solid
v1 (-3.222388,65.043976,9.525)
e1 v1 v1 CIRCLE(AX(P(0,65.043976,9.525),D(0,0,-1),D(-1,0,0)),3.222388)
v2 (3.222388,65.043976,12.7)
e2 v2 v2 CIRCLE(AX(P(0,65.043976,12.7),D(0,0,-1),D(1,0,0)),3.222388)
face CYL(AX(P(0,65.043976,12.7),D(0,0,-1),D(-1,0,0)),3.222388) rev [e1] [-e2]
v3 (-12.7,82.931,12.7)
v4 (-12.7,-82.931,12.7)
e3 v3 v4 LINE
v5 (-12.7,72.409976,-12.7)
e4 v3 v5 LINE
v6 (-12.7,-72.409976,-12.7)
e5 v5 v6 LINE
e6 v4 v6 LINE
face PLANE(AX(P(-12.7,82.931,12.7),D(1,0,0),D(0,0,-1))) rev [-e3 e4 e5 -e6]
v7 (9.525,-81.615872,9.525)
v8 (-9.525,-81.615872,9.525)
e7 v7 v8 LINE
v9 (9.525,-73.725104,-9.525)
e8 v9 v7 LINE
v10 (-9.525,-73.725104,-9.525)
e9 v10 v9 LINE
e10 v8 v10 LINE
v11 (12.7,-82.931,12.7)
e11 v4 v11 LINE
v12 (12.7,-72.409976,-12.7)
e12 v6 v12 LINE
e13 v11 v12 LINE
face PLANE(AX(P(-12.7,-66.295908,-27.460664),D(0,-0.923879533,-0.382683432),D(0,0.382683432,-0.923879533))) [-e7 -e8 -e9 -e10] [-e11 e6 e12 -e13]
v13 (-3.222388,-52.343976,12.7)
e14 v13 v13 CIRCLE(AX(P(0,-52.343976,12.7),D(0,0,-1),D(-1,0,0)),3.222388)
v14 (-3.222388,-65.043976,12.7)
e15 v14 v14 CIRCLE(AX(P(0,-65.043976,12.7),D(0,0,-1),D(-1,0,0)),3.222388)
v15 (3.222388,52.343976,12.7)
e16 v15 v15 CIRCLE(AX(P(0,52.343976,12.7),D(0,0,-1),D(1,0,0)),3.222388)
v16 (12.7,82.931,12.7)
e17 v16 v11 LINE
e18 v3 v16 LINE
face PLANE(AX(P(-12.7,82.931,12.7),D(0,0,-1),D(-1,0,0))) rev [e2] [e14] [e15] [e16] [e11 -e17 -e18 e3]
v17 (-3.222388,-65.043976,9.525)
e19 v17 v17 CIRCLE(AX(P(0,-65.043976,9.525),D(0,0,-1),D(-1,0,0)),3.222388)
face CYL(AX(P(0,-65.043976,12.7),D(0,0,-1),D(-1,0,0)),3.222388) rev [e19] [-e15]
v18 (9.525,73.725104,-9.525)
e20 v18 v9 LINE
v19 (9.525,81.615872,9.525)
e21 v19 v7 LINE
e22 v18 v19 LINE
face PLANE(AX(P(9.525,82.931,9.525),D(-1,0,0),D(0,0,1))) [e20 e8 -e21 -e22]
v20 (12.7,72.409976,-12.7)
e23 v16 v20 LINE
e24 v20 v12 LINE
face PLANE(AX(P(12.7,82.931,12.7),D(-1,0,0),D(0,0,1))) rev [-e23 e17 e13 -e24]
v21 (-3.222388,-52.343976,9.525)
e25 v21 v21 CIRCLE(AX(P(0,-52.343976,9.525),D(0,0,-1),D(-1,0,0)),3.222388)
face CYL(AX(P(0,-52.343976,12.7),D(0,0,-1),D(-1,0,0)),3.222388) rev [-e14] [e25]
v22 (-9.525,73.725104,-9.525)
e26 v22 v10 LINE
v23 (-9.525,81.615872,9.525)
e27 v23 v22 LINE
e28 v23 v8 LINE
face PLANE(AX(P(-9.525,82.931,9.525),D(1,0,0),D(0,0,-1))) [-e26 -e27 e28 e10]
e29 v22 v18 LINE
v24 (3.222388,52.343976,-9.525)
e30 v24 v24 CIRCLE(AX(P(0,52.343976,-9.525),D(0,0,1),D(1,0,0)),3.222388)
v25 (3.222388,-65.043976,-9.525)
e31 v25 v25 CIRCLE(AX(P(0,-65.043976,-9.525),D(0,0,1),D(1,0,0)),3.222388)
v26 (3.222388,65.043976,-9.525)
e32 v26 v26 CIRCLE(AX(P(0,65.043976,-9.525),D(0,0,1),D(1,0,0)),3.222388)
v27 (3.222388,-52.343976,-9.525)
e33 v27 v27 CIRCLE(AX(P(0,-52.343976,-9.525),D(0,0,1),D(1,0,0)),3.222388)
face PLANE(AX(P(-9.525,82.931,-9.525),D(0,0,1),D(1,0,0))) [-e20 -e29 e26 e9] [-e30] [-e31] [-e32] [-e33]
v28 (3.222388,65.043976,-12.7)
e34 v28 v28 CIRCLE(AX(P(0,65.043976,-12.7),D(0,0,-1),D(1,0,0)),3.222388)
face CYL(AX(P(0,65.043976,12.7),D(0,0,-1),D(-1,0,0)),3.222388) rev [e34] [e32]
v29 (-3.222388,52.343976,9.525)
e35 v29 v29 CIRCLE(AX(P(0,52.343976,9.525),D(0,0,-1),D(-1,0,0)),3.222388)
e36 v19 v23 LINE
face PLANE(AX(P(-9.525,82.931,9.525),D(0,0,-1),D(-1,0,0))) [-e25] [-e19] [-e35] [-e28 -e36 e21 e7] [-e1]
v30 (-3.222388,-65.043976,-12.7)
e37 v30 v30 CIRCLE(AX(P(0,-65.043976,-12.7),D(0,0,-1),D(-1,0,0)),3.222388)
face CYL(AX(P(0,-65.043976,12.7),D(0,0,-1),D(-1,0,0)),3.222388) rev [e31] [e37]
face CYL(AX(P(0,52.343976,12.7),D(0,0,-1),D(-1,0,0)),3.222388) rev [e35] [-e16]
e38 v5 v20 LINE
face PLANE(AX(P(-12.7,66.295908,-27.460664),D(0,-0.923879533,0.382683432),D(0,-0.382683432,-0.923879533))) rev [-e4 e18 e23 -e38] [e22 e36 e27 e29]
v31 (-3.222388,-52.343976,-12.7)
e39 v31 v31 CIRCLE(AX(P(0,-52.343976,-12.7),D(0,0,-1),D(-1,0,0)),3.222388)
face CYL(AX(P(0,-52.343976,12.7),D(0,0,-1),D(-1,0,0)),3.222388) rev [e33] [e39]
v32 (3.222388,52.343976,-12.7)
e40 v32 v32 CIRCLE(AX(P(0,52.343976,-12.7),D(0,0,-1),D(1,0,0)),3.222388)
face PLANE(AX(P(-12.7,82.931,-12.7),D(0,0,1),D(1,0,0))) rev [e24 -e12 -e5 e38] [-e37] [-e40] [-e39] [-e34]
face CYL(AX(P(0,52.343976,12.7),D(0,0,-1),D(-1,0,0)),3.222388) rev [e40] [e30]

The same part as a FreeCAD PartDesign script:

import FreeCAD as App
import Part
import Sketcher
Q = App.Units.Quantity

doc = App.newDocument("Part")
body = doc.addObject("PartDesign::Body", "Body")

# Sketch on XZ plane
sketch1 = body.newObject("Sketcher::SketchObject", "Sketch")
sketch1.AttachmentSupport = (doc.getObject("XZ_Plane"), [""])
sketch1.MapMode = "FlatFace"
sketch1.addGeometry(Part.LineSegment(App.Vector(-12.7, -12.7, 0), App.Vector(-12.7, 12.7, 0)), False)
sketch1.addGeometry(Part.LineSegment(App.Vector(-12.7, 12.7, 0), App.Vector(12.7, 12.7, 0)), False)
sketch1.addGeometry(Part.LineSegment(App.Vector(12.7, 12.7, 0), App.Vector(12.7, -12.7, 0)), False)
sketch1.addGeometry(Part.LineSegment(App.Vector(12.7, -12.7, 0), App.Vector(-12.7, -12.7, 0)), False)
sketch1.addGeometry(Part.LineSegment(App.Vector(9.525, 9.525, 0), App.Vector(-9.525, 9.525, 0)), False)
sketch1.addGeometry(Part.LineSegment(App.Vector(-9.525, 9.525, 0), App.Vector(-9.525, -9.525, 0)), False)
sketch1.addGeometry(Part.LineSegment(App.Vector(-9.525, -9.525, 0), App.Vector(9.525, -9.525, 0)), False)
sketch1.addGeometry(Part.LineSegment(App.Vector(9.525, -9.525, 0), App.Vector(9.525, 9.525, 0)), False)
sketch1.addConstraint(Sketcher.Constraint("Coincident", 0, 2, 1, 1))
sketch1.addConstraint(Sketcher.Constraint("Coincident", 1, 2, 2, 1))
sketch1.addConstraint(Sketcher.Constraint("Coincident", 2, 2, 3, 1))
sketch1.addConstraint(Sketcher.Constraint("Coincident", 3, 2, 0, 1))
sketch1.addConstraint(Sketcher.Constraint("Coincident", 4, 2, 5, 1))
sketch1.addConstraint(Sketcher.Constraint("Coincident", 5, 2, 6, 1))
sketch1.addConstraint(Sketcher.Constraint("Coincident", 6, 2, 7, 1))
sketch1.addConstraint(Sketcher.Constraint("Coincident", 7, 2, 4, 1))
sketch1.addConstraint(Sketcher.Constraint("Vertical", 0))
sketch1.addConstraint(Sketcher.Constraint("Horizontal", 1))
sketch1.addConstraint(Sketcher.Constraint("Vertical", 2))
sketch1.addConstraint(Sketcher.Constraint("Horizontal", 3))
sketch1.addConstraint(Sketcher.Constraint("Horizontal", 4))
sketch1.addConstraint(Sketcher.Constraint("Vertical", 5))
sketch1.addConstraint(Sketcher.Constraint("Horizontal", 6))
sketch1.addConstraint(Sketcher.Constraint("Vertical", 7))
sketch1.addConstraint(Sketcher.Constraint("Symmetric", 0, 2, 2, 2, -1, 1))
sketch1.addConstraint(Sketcher.Constraint("Symmetric", 4, 2, 6, 2, -1, 1))
sketch1.addConstraint(Sketcher.Constraint("Equal", 3, 0))
sketch1.addConstraint(Sketcher.Constraint("Equal", 6, 5))
sketch1.addConstraint(Sketcher.Constraint("DistanceX", 1, 1, 1, 2, Q("1 in")))
sketch1.addConstraint(Sketcher.Constraint("DistanceX", 4, 2, 4, 1, Q("0.75 in")))
pad1 = body.newObject("PartDesign::Pad", "Pad")
pad1.Profile = sketch1
pad1.Length = Q("6.53 in")
pad1.Midplane = True

# Sketch on YZ plane
sketch2 = body.newObject("Sketcher::SketchObject", "Sketch001")
sketch2.AttachmentSupport = (doc.getObject("YZ_Plane"), [""])
sketch2.MapMode = "FlatFace"
sketch2.AttachmentOffset = App.Placement(App.Vector(0, 0, 0.5 * 25.4), App.Rotation())
sketch2.addGeometry(Part.LineSegment(App.Vector(82.931, -12.7, 0), App.Vector(82.931, 12.7, 0)), False)
sketch2.addGeometry(Part.LineSegment(App.Vector(82.931, 12.7, 0), App.Vector(72.409976, -12.7, 0)), False)
sketch2.addGeometry(Part.LineSegment(App.Vector(72.409976, -12.7, 0), App.Vector(82.931, -12.7, 0)), False)
sketch2.addGeometry(Part.LineSegment(App.Vector(-72.409976, -12.7, 0), App.Vector(-82.931, 12.7, 0)), False)
sketch2.addGeometry(Part.LineSegment(App.Vector(-82.931, 12.7, 0), App.Vector(-82.931, -12.7, 0)), False)
sketch2.addGeometry(Part.LineSegment(App.Vector(-82.931, -12.7, 0), App.Vector(-72.409976, -12.7, 0)), False)
sketch2.addConstraint(Sketcher.Constraint("Coincident", 0, 2, 1, 1))
sketch2.addConstraint(Sketcher.Constraint("Coincident", 1, 2, 2, 1))
sketch2.addConstraint(Sketcher.Constraint("Coincident", 2, 2, 0, 1))
sketch2.addConstraint(Sketcher.Constraint("Coincident", 3, 2, 4, 1))
sketch2.addConstraint(Sketcher.Constraint("Coincident", 4, 2, 5, 1))
sketch2.addConstraint(Sketcher.Constraint("Coincident", 5, 2, 3, 1))
sketch2.addConstraint(Sketcher.Constraint("Vertical", 0))
sketch2.addConstraint(Sketcher.Constraint("Horizontal", 2))
sketch2.addConstraint(Sketcher.Constraint("Vertical", 4))
sketch2.addConstraint(Sketcher.Constraint("Horizontal", 5))
sketch2.addConstraint(Sketcher.Constraint("Symmetric", 2, 2, 3, 2, -1, 1))
sketch2.addConstraint(Sketcher.Constraint("Symmetric", 1, 2, 5, 2, -2))
sketch2.addConstraint(Sketcher.Constraint("Horizontal", 0, 2, 3, 2))
sketch2.addConstraint(Sketcher.Constraint("DistanceY", 0, 1, 0, 2, Q("1 in")))
sketch2.addConstraint(Sketcher.Constraint("Angle", 1, Q("-112.5 deg")))
sketch2.addConstraint(Sketcher.Constraint("DistanceX", 3, 2, 0, 2, Q("6.53 in")))
pocket1 = body.newObject("PartDesign::Pocket", "Pocket")
pocket1.Profile = sketch2
pocket1.Type = "ThroughAll"

# Sketch on XY plane
sketch3 = body.newObject("Sketcher::SketchObject", "Sketch002")
sketch3.AttachmentSupport = (doc.getObject("XY_Plane"), [""])
sketch3.MapMode = "FlatFace"
sketch3.AttachmentOffset = App.Placement(App.Vector(0, 0, -0.5 * 25.4), App.Rotation())
sketch3.addGeometry(Part.Circle(App.Vector(0, -65.043976, 0), App.Vector(0, 0, 1), 3.222388), False)
sketch3.addGeometry(Part.Circle(App.Vector(0, -52.343976, 0), App.Vector(0, 0, 1), 3.222388), False)
sketch3.addGeometry(Part.Circle(App.Vector(0, 65.043976, 0), App.Vector(0, 0, 1), 3.222388), False)
sketch3.addGeometry(Part.Circle(App.Vector(0, 52.343976, 0), App.Vector(0, 0, 1), 3.222388), False)
sketch3.addConstraint(Sketcher.Constraint("Equal", 0, 1))
sketch3.addConstraint(Sketcher.Constraint("Equal", 1, 2))
sketch3.addConstraint(Sketcher.Constraint("Equal", 2, 3))
sketch3.addConstraint(Sketcher.Constraint("Symmetric", 0, 3, 2, 3, -1, 1))
sketch3.addConstraint(Sketcher.Constraint("Symmetric", 1, 3, 3, 3, -1, 1))
sketch3.addConstraint(Sketcher.Constraint("PointOnObject", 0, 3, -2))
sketch3.addConstraint(Sketcher.Constraint("PointOnObject", 1, 3, -2))
sketch3.addConstraint(Sketcher.Constraint("DistanceY", 0, 3, 1, 3, Q("0.5 in")))
sketch3.addConstraint(Sketcher.Constraint("Diameter", 0, Q("6.444776 mm")))
sketch3.addConstraint(Sketcher.Constraint("DistanceY", 1, 3, 2, 3, Q("117.387951 mm")))
pocket2 = body.newObject("PartDesign::Pocket", "Pocket001")
pocket2.Profile = sketch3
pocket2.Type = "ThroughAll"
pocket2.Reversed = True

doc.recompute()
